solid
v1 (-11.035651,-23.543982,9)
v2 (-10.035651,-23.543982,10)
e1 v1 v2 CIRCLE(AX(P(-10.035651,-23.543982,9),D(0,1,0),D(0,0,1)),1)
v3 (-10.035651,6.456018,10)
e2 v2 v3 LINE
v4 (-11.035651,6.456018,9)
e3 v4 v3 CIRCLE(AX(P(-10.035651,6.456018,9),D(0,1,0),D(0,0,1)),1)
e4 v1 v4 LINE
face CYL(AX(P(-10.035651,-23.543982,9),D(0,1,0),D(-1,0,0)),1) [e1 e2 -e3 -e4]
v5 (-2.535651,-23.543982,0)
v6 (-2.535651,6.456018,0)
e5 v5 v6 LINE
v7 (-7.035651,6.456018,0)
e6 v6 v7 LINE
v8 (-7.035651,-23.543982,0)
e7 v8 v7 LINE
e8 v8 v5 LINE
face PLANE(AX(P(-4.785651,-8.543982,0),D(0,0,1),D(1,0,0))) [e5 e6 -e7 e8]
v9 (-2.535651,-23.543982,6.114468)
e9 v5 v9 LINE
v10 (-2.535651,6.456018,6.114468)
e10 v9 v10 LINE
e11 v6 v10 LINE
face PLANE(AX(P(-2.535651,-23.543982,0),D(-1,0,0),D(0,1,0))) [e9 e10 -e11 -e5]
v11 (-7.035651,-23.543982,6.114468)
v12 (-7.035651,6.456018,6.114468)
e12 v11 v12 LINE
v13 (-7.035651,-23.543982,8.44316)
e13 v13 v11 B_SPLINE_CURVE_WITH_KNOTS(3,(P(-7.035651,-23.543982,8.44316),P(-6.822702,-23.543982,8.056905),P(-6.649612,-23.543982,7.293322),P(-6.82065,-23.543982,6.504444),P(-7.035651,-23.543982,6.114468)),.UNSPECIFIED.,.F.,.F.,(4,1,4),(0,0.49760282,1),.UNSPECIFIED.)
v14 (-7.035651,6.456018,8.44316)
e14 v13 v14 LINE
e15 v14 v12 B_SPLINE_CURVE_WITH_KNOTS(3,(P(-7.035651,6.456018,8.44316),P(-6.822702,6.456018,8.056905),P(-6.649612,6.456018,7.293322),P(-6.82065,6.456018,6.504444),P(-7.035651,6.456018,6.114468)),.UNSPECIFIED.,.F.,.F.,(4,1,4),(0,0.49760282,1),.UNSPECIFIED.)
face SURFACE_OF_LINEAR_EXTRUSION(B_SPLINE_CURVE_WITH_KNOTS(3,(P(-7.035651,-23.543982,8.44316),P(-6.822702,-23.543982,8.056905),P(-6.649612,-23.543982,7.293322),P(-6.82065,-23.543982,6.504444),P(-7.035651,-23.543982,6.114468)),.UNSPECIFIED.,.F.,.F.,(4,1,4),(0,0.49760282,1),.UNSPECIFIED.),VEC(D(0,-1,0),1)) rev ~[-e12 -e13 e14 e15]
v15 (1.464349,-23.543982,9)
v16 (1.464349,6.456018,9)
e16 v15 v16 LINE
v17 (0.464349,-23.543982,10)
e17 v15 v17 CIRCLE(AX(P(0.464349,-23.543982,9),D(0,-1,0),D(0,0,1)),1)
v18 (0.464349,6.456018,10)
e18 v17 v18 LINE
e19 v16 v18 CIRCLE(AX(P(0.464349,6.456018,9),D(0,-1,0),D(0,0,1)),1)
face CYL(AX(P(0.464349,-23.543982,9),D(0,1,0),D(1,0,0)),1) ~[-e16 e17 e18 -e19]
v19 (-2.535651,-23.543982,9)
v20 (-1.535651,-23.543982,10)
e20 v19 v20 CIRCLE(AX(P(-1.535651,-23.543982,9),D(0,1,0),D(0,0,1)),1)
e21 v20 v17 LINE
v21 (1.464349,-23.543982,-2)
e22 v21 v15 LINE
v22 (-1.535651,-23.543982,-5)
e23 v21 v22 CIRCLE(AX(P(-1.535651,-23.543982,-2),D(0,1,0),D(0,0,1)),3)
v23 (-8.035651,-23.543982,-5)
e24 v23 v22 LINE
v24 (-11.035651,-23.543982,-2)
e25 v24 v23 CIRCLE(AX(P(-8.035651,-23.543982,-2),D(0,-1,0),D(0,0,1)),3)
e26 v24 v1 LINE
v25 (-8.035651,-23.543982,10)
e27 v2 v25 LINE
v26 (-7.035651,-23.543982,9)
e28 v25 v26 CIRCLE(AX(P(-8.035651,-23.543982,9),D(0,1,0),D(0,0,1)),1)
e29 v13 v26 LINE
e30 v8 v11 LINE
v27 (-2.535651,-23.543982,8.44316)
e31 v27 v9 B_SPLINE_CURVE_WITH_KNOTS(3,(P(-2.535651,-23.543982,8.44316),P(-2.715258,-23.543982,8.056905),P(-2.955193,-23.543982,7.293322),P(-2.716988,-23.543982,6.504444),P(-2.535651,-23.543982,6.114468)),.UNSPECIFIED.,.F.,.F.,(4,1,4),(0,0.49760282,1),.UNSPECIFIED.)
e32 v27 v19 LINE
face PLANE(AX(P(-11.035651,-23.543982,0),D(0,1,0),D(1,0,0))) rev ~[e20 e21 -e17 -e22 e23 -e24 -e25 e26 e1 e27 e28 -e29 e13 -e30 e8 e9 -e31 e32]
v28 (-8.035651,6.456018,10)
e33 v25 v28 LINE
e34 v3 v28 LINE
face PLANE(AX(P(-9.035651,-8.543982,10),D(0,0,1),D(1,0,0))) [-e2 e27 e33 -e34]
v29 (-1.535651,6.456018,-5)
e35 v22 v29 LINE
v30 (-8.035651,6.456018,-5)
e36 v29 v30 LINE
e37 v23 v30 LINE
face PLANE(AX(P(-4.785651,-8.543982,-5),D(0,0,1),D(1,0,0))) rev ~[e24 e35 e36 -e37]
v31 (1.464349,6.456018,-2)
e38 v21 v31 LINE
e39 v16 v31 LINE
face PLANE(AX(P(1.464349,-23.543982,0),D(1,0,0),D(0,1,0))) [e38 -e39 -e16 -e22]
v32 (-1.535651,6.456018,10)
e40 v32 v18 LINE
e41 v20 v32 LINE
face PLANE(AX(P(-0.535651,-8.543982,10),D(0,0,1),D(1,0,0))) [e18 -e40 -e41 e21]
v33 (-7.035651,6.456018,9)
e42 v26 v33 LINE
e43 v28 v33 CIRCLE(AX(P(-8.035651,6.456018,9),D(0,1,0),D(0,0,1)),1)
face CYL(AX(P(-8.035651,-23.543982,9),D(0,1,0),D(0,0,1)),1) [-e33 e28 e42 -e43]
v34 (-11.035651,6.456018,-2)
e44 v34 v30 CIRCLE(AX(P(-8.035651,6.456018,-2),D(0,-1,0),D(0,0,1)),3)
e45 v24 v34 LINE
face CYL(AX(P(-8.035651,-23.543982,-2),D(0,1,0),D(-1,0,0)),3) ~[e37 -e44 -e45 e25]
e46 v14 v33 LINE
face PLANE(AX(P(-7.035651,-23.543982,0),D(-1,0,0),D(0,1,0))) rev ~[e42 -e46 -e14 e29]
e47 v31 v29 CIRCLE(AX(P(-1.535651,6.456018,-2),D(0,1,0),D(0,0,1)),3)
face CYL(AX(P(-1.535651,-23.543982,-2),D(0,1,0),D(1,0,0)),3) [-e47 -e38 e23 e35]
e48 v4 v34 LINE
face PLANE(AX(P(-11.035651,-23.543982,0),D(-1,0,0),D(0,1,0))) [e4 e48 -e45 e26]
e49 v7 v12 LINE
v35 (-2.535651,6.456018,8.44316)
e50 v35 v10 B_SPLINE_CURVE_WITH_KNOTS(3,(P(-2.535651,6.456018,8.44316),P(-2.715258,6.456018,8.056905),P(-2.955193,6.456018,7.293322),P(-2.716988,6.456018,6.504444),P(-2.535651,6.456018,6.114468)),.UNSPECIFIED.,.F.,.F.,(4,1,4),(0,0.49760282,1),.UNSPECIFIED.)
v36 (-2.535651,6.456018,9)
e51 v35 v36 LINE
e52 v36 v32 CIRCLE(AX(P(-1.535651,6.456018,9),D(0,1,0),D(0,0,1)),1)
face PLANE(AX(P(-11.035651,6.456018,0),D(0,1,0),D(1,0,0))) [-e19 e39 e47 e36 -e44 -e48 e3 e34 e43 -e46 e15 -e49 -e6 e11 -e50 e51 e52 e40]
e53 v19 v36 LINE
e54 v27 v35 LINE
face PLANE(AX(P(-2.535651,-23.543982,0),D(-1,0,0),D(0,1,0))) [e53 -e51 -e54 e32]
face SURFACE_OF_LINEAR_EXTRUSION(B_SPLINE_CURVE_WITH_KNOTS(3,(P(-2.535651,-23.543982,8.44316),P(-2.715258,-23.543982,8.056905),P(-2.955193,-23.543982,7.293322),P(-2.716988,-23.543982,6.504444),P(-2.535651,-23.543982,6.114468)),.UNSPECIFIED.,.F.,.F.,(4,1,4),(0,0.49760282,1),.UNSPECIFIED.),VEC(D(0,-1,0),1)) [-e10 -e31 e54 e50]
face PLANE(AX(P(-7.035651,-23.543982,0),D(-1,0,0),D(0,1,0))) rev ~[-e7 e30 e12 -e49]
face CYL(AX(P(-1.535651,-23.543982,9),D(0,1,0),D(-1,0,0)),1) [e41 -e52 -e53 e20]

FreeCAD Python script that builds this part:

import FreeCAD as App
import Part
import Sketcher

V = App.Vector
Q = App.Units.Quantity


def edges_at(feature, points):
    """Names of the edges that pass closest to the given points."""
    edges = feature.Shape.Edges
    near = lambda p: min(range(len(edges)), key=lambda i: edges[i].distToShape(Part.Vertex(*p))[0])
    return sorted({f"Edge{near(p) + 1}" for p in points})


def add_polygon(sketch, points):
    """Adds a closed chain of lines whose ends are joined by coincident constraints."""
    first, n = sketch.GeometryCount, len(points)
    for a, b in zip(points, points[1:] + points[:1]):
        sketch.addGeometry(Part.LineSegment(App.Vector(*a, 0), App.Vector(*b, 0)), False)
    for i in range(n):
        sketch.addConstraint(Sketcher.Constraint("Coincident", first + i, 2, first + (i + 1) % n, 1))

doc = App.newDocument("Part")
body = doc.addObject("PartDesign::Body", "Body")

# Sketch on XY plane
sketch1 = body.newObject("Sketcher::SketchObject", "Sketch")
sketch1.AttachmentSupport = (doc.getObject("XY_Plane"), [""])
sketch1.MapMode = "FlatFace"
add_polygon(sketch1, [(-11.035651, 6.456018), (-11.035651, -23.543982), (1.464349, -23.543982), (1.464349, 6.456018)])  # lines 0-3
sketch1.addConstraint([
    Sketcher.Constraint("Vertical", 0),
    Sketcher.Constraint("Horizontal", 1),
    Sketcher.Constraint("Vertical", 2),
    Sketcher.Constraint("Horizontal", 3),
    Sketcher.Constraint("DistanceY", 0, 2, 0, 1, Q("30 mm")),
    Sketcher.Constraint("DistanceX", 1, 1, 1, 2, Q("12.5 mm")),
    Sketcher.Constraint("DistanceX", 0, 2, -1, 1, Q("11.035651 mm")),
    Sketcher.Constraint("DistanceY", 0, 2, -1, 1, Q("23.543982 mm")),
])
pad1 = body.newObject("PartDesign::Pad", "Pad")
pad1.Profile = sketch1
pad1.Length = 5
pad1.Reversed = True

# Sketch on XY plane
sketch2 = body.newObject("Sketcher::SketchObject", "Sketch001")
sketch2.AttachmentSupport = (doc.getObject("XY_Plane"), [""])
sketch2.MapMode = "FlatFace"
add_polygon(sketch2, [(-11.035651, 6.456018), (-11.035651, -23.543982), (-7.035651, -23.543982), (-7.035651, 6.456018)])  # lines 0-3
add_polygon(sketch2, [(-2.535651, 6.456018), (-2.535651, -23.543982), (1.464349, -23.543982), (1.464349, 6.456018)])  # lines 4-7
sketch2.addConstraint([
    Sketcher.Constraint("Vertical", 0),
    Sketcher.Constraint("Horizontal", 1),
    Sketcher.Constraint("Vertical", 2),
    Sketcher.Constraint("Horizontal", 3),
    Sketcher.Constraint("Vertical", 4),
    Sketcher.Constraint("Horizontal", 5),
    Sketcher.Constraint("Vertical", 6),
    Sketcher.Constraint("Horizontal", 7),
    Sketcher.Constraint("Horizontal", 1, 2, 4, 2),
    Sketcher.Constraint("Horizontal", 3, 2, 6, 2),
    Sketcher.Constraint("Equal", 3, 5),
    Sketcher.Constraint("DistanceX", 1, 1, 1, 2, Q("4 mm")),
    Sketcher.Constraint("DistanceY", 0, 2, 0, 1, Q("30 mm")),
    Sketcher.Constraint("DistanceX", 1, 2, 4, 2, Q("4.5 mm")),
    Sketcher.Constraint("DistanceX", 0, 2, -1, 1, Q("11.035651 mm")),
    Sketcher.Constraint("DistanceY", 0, 2, -1, 1, Q("23.543982 mm")),
])
pad2 = body.newObject("PartDesign::Pad", "Pad001")
pad2.Profile = sketch2
pad2.Length = 10
doc.recompute()

fillet = body.newObject("PartDesign::Fillet", "Fillet")
fillet.Base = (pad2, edges_at(pad2, [(1.464, -8.544, -5), (-11.036, -8.544, -5)]))
fillet.Radius = 3
doc.recompute()

fillet2 = body.newObject("PartDesign::Fillet", "Fillet001")
fillet2.Base = (fillet, edges_at(fillet, [
    (-7.036, -8.544, 10),
    (-11.036, -8.544, 10),
    (1.464, -8.544, 10),
    (-2.536, -8.544, 10),
]))
fillet2.Radius = 1

# Sketch on XZ plane
sketch3 = body.newObject("Sketcher::SketchObject", "Sketch002")
sketch3.AttachmentSupport = (doc.getObject("XZ_Plane"), [""])
sketch3.MapMode = "FlatFace"
sketch3.AttachmentOffset = App.Placement(V(0, 0, 23.543982), App.Rotation())
sketch3.addGeometry([
    Part.LineSegment(V(-2.535651, 6.114468, 0), V(-2.535651, 8.44316, 0)),
    Part.BSplineCurve([V(-2.535651, 8.44316, 0), V(-2.715258, 8.056905, 0), V(-2.955193, 7.293322, 0), V(-2.716988, 6.504444, 0), V(-2.535651, 6.114468, 0)], [4, 1, 4], [0, 0.49760282, 1], False, 3, [1, 1, 1, 1, 1], False),
    Part.LineSegment(V(-7.035651, 8.44316, 0), V(-7.035651, 6.114468, 0)),
    Part.BSplineCurve([V(-7.035651, 8.44316, 0), V(-6.822702, 8.056905, 0), V(-6.649612, 7.293322, 0), V(-6.82065, 6.504444, 0), V(-7.035651, 6.114468, 0)], [4, 1, 4], [0, 0.49760282, 1], False, 3, [1, 1, 1, 1, 1], False),
], False)
sketch3.addConstraint([
    Sketcher.Constraint("Block", 1),
    Sketcher.Constraint("Block", 3),
    Sketcher.Constraint("Coincident", 0, 1, 1, 2),
    Sketcher.Constraint("Coincident", 1, 1, 0, 2),
    Sketcher.Constraint("Coincident", 2, 1, 3, 1),
    Sketcher.Constraint("Coincident", 3, 2, 2, 2),
])
pad3 = body.newObject("PartDesign::Pad", "Pad002")
pad3.Profile = sketch3
pad3.Length = 30
pad3.Reversed = True

doc.recompute()
